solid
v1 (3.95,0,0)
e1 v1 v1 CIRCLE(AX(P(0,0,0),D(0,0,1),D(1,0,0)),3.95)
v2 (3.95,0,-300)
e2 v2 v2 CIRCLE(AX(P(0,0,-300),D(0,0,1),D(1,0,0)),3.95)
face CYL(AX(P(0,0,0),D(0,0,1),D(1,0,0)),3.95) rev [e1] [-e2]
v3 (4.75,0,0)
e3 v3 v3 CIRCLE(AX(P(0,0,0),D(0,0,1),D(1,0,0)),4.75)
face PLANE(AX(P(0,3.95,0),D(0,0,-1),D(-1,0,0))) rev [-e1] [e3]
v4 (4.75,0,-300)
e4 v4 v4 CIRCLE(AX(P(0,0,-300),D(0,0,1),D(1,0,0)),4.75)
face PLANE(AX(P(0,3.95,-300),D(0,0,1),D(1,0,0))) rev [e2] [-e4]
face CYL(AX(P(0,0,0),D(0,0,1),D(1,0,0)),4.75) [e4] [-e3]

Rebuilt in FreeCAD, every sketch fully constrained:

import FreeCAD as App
import Part
import Sketcher

V = App.Vector
Q = App.Units.Quantity

doc = App.newDocument("Part")
body = doc.addObject("PartDesign::Body", "Body")

# Sketch on YZ plane
sketch1 = body.newObject("Sketcher::SketchObject", "Sketch")
sketch1.AttachmentSupport = (doc.getObject("YZ_Plane"), [""])
sketch1.MapMode = "FlatFace"
sketch1.addGeometry([
    Part.LineSegment(V(4.8, 0, 0), V(4, 0, 0)),
    Part.LineSegment(V(4, 0, 0), V(4, -300, 0)),
    Part.LineSegment(V(4, -300, 0), V(4.8, -300, 0)),
    Part.LineSegment(V(4.8, -300, 0), V(4.8, 0, 0)),
], False)
sketch1.addConstraint([
    Sketcher.Constraint("Coincident", 0, 2, 1, 1),
    Sketcher.Constraint("Coincident", 1, 2, 2, 1),
    Sketcher.Constraint("Coincident", 2, 2, 3, 1),
    Sketcher.Constraint("Coincident", 3, 2, 0, 1),
    Sketcher.Constraint("Horizontal", 0),
    Sketcher.Constraint("Vertical", 1),
    Sketcher.Constraint("Horizontal", 2),
    Sketcher.Constraint("Vertical", 3),
    Sketcher.Constraint("PointOnObject", 0, 2, -1),
    Sketcher.Constraint("DistanceY", 1, 2, 1, 1, Q("300 mm")),
    Sketcher.Constraint("DistanceX", 0, 2, 0, 1, Q("0.8 mm")),
    Sketcher.Constraint("DistanceX", -1, 1, 0, 2, Q("3.95 mm")),
])
revolution = body.newObject("PartDesign::Revolution", "Revolution")
revolution.Profile = sketch1
revolution.ReferenceAxis = (sketch1, ["V_Axis"])
revolution.Angle = 360

doc.recompute()
